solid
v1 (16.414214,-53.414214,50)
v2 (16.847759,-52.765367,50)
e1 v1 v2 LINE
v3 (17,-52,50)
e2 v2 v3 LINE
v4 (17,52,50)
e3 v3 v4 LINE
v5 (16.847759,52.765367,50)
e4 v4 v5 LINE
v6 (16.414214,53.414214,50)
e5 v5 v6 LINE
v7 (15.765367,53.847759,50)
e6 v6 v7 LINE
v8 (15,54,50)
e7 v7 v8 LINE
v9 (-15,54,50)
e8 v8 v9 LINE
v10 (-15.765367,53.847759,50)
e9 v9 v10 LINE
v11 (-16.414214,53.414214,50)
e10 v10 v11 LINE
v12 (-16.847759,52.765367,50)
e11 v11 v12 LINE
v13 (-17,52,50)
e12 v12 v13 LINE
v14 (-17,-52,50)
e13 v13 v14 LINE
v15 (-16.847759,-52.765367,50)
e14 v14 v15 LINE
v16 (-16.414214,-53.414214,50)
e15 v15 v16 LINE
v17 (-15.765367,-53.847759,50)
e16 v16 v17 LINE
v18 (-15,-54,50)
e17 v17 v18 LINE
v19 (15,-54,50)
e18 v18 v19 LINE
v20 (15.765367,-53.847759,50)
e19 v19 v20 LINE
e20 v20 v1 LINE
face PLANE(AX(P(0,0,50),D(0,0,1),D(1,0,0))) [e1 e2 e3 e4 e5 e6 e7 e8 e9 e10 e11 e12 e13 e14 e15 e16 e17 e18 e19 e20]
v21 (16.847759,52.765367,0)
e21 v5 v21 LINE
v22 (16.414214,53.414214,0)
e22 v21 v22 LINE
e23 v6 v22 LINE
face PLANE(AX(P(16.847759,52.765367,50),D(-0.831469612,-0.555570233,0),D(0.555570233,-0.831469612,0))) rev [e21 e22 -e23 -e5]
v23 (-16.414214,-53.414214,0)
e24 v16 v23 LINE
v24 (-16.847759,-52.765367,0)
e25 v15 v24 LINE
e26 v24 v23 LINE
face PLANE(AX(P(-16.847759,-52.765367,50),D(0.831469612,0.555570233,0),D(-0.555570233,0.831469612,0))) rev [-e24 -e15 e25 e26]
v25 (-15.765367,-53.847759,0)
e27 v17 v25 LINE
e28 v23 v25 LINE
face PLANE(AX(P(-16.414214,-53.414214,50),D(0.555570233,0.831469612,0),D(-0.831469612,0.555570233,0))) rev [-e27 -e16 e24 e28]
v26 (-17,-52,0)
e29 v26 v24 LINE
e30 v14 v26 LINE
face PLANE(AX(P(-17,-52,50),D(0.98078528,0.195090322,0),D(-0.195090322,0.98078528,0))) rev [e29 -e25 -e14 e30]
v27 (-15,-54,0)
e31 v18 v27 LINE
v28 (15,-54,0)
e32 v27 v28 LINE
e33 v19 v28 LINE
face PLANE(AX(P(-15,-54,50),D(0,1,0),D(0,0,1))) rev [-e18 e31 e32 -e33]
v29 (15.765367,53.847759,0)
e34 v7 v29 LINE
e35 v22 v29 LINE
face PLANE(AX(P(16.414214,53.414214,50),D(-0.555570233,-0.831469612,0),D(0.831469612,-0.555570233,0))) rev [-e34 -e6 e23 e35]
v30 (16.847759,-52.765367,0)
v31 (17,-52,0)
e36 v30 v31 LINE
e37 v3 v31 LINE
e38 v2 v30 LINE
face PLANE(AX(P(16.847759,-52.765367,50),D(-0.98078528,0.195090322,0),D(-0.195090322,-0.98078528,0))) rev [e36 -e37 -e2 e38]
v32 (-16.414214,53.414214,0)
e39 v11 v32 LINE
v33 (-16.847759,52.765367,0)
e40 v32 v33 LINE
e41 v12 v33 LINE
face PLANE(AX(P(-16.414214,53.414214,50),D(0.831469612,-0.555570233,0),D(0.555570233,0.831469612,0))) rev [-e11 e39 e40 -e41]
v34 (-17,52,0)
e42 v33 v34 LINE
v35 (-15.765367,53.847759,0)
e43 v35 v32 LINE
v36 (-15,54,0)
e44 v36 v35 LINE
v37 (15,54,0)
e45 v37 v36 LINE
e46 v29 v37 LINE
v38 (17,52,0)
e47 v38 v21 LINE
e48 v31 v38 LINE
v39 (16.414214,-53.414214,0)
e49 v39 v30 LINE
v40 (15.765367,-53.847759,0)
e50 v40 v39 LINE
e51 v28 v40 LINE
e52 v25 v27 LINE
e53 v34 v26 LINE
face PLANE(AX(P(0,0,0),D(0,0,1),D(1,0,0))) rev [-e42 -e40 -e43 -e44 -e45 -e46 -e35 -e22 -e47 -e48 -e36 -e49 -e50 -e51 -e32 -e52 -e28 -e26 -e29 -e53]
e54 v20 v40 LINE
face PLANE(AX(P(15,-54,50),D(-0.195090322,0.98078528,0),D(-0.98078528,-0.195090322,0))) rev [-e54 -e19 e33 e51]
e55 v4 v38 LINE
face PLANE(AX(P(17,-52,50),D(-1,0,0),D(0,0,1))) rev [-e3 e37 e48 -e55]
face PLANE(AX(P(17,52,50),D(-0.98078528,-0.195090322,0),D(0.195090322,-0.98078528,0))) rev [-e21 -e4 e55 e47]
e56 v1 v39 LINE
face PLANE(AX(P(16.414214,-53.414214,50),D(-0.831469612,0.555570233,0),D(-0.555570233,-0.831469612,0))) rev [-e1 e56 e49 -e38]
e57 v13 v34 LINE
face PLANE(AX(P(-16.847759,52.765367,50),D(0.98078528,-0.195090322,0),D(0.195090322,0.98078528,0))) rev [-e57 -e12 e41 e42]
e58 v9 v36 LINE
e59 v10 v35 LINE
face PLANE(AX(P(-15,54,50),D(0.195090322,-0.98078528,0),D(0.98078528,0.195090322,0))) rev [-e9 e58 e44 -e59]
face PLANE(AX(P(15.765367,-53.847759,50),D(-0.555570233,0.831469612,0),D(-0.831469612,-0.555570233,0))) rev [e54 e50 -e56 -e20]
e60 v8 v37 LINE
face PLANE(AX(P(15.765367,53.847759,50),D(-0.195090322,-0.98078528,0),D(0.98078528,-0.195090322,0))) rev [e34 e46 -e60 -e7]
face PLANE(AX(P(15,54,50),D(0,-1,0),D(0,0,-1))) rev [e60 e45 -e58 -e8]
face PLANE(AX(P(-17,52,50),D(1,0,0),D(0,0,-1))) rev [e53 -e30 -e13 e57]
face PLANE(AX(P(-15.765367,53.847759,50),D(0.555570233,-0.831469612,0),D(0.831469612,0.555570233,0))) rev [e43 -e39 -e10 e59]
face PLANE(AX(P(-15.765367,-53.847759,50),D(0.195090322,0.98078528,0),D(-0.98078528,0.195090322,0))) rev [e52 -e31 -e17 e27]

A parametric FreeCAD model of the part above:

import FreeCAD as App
import Part
import Sketcher
Q = App.Units.Quantity

doc = App.newDocument("Part")
body = doc.addObject("PartDesign::Body", "Body")

sketch1 = body.newObject("Sketcher::SketchObject", "Sketch")
sketch1.AttachmentSupport = (doc.getObject("XY_Plane"), [""])
sketch1.MapMode = "FlatFace"
sketch1.addGeometry(Part.LineSegment(App.Vector(17, 52, 0), App.Vector(16.847759, 52.765367, 0)), False)
sketch1.addGeometry(Part.LineSegment(App.Vector(16.847759, 52.765367, 0), App.Vector(16.414214, 53.414214, 0)), False)
sketch1.addGeometry(Part.LineSegment(App.Vector(16.414214, 53.414214, 0), App.Vector(15.765367, 53.847759, 0)), False)
sketch1.addGeometry(Part.LineSegment(App.Vector(15.765367, 53.847759, 0), App.Vector(15, 54, 0)), False)
sketch1.addGeometry(Part.LineSegment(App.Vector(15, 54, 0), App.Vector(-15, 54, 0)), False)
sketch1.addGeometry(Part.LineSegment(App.Vector(-15, 54, 0), App.Vector(-15.765367, 53.847759, 0)), False)
sketch1.addGeometry(Part.LineSegment(App.Vector(-15.765367, 53.847759, 0), App.Vector(-16.414214, 53.414214, 0)), False)
sketch1.addGeometry(Part.LineSegment(App.Vector(-16.414214, 53.414214, 0), App.Vector(-16.847759, 52.765367, 0)), False)
sketch1.addGeometry(Part.LineSegment(App.Vector(-16.847759, 52.765367, 0), App.Vector(-17, 52, 0)), False)
sketch1.addGeometry(Part.LineSegment(App.Vector(-17, 52, 0), App.Vector(-17, -52, 0)), False)
sketch1.addGeometry(Part.LineSegment(App.Vector(-17, -52, 0), App.Vector(-16.847759, -52.765367, 0)), False)
sketch1.addGeometry(Part.LineSegment(App.Vector(-16.847759, -52.765367, 0), App.Vector(-16.414214, -53.414214, 0)), False)
sketch1.addGeometry(Part.LineSegment(App.Vector(-16.414214, -53.414214, 0), App.Vector(-15.765367, -53.847759, 0)), False)
sketch1.addGeometry(Part.LineSegment(App.Vector(-15.765367, -53.847759, 0), App.Vector(-15, -54, 0)), False)
sketch1.addGeometry(Part.LineSegment(App.Vector(-15, -54, 0), App.Vector(15, -54, 0)), False)
sketch1.addGeometry(Part.LineSegment(App.Vector(15, -54, 0), App.Vector(15.765367, -53.847759, 0)), False)
sketch1.addGeometry(Part.LineSegment(App.Vector(15.765367, -53.847759, 0), App.Vector(16.414214, -53.414214, 0)), False)
sketch1.addGeometry(Part.LineSegment(App.Vector(16.414214, -53.414214, 0), App.Vector(16.847759, -52.765367, 0)), False)
sketch1.addGeometry(Part.LineSegment(App.Vector(16.847759, -52.765367, 0), App.Vector(17, -52, 0)), False)
sketch1.addGeometry(Part.LineSegment(App.Vector(17, -52, 0), App.Vector(17, 52, 0)), False)
sketch1.addConstraint(Sketcher.Constraint("Coincident", 0, 2, 1, 1))
sketch1.addConstraint(Sketcher.Constraint("Coincident", 1, 2, 2, 1))
sketch1.addConstraint(Sketcher.Constraint("Coincident", 2, 2, 3, 1))
sketch1.addConstraint(Sketcher.Constraint("Coincident", 3, 2, 4, 1))
sketch1.addConstraint(Sketcher.Constraint("Coincident", 4, 2, 5, 1))
sketch1.addConstraint(Sketcher.Constraint("Coincident", 5, 2, 6, 1))
sketch1.addConstraint(Sketcher.Constraint("Coincident", 6, 2, 7, 1))
sketch1.addConstraint(Sketcher.Constraint("Coincident", 7, 2, 8, 1))
sketch1.addConstraint(Sketcher.Constraint("Coincident", 8, 2, 9, 1))
sketch1.addConstraint(Sketcher.Constraint("Coincident", 9, 2, 10, 1))
sketch1.addConstraint(Sketcher.Constraint("Coincident", 10, 2, 11, 1))
sketch1.addConstraint(Sketcher.Constraint("Coincident", 11, 2, 12, 1))
sketch1.addConstraint(Sketcher.Constraint("Coincident", 12, 2, 13, 1))
sketch1.addConstraint(Sketcher.Constraint("Coincident", 13, 2, 14, 1))
sketch1.addConstraint(Sketcher.Constraint("Coincident", 14, 2, 15, 1))
sketch1.addConstraint(Sketcher.Constraint("Coincident", 15, 2, 16, 1))
sketch1.addConstraint(Sketcher.Constraint("Coincident", 16, 2, 17, 1))
sketch1.addConstraint(Sketcher.Constraint("Coincident", 17, 2, 18, 1))
sketch1.addConstraint(Sketcher.Constraint("Coincident", 18, 2, 19, 1))
sketch1.addConstraint(Sketcher.Constraint("Coincident", 19, 2, 0, 1))
sketch1.addConstraint(Sketcher.Constraint("Horizontal", 4))
sketch1.addConstraint(Sketcher.Constraint("Vertical", 9))
sketch1.addConstraint(Sketcher.Constraint("Horizontal", 14))
sketch1.addConstraint(Sketcher.Constraint("Vertical", 19))
sketch1.addConstraint(Sketcher.Constraint("Symmetric", 0, 2, 10, 2, -1, 1))
sketch1.addConstraint(Sketcher.Constraint("Symmetric", 1, 2, 11, 2, -1, 1))
sketch1.addConstraint(Sketcher.Constraint("Symmetric", 2, 2, 12, 2, -1, 1))
sketch1.addConstraint(Sketcher.Constraint("Symmetric", 3, 2, 13, 2, -1, 1))
sketch1.addConstraint(Sketcher.Constraint("Symmetric", 5, 2, 15, 2, -1, 1))
sketch1.addConstraint(Sketcher.Constraint("Symmetric", 6, 2, 16, 2, -1, 1))
sketch1.addConstraint(Sketcher.Constraint("Symmetric", 7, 2, 17, 2, -1, 1))
sketch1.addConstraint(Sketcher.Constraint("Symmetric", 8, 2, 18, 2, -1, 1))
sketch1.addConstraint(Sketcher.Constraint("Symmetric", 2, 2, 5, 2, -2))
sketch1.addConstraint(Sketcher.Constraint("Symmetric", 1, 2, 6, 2, -2))
sketch1.addConstraint(Sketcher.Constraint("Symmetric", 0, 2, 7, 2, -2))
sketch1.addConstraint(Sketcher.Constraint("Perpendicular", 0, 5))
sketch1.addConstraint(Sketcher.Constraint("Perpendicular", 1, 6))
sketch1.addConstraint(Sketcher.Constraint("Perpendicular", 3, 8))
sketch1.addConstraint(Sketcher.Constraint("Perpendicular", 5, 10))
sketch1.addConstraint(Sketcher.Constraint("Perpendicular", 10, 15))
sketch1.addConstraint(Sketcher.Constraint("Horizontal", 9, 2, 18, 2))
sketch1.addConstraint(Sketcher.Constraint("Equal", 0, 1))
sketch1.addConstraint(Sketcher.Constraint("Equal", 1, 2))
sketch1.addConstraint(Sketcher.Constraint("Equal", 2, 3))
sketch1.addConstraint(Sketcher.Constraint("DistanceX", 4, 2, 4, 1, 30.0))
sketch1.addConstraint(Sketcher.Constraint("DistanceY", 9, 2, 9, 1, 104.0))
sketch1.addConstraint(Sketcher.Constraint("DistanceY", -1, 1, 3, 2, 54.0))
sketch1.addConstraint(Sketcher.Constraint("Angle", 0, Q("101.25 deg")))
sketch1.addConstraint(Sketcher.Constraint("Angle", 1, Q("123.75 deg")))
pad1 = body.newObject("PartDesign::Pad", "Pad")
pad1.Profile = sketch1
pad1.Length = 50

doc.recompute()
